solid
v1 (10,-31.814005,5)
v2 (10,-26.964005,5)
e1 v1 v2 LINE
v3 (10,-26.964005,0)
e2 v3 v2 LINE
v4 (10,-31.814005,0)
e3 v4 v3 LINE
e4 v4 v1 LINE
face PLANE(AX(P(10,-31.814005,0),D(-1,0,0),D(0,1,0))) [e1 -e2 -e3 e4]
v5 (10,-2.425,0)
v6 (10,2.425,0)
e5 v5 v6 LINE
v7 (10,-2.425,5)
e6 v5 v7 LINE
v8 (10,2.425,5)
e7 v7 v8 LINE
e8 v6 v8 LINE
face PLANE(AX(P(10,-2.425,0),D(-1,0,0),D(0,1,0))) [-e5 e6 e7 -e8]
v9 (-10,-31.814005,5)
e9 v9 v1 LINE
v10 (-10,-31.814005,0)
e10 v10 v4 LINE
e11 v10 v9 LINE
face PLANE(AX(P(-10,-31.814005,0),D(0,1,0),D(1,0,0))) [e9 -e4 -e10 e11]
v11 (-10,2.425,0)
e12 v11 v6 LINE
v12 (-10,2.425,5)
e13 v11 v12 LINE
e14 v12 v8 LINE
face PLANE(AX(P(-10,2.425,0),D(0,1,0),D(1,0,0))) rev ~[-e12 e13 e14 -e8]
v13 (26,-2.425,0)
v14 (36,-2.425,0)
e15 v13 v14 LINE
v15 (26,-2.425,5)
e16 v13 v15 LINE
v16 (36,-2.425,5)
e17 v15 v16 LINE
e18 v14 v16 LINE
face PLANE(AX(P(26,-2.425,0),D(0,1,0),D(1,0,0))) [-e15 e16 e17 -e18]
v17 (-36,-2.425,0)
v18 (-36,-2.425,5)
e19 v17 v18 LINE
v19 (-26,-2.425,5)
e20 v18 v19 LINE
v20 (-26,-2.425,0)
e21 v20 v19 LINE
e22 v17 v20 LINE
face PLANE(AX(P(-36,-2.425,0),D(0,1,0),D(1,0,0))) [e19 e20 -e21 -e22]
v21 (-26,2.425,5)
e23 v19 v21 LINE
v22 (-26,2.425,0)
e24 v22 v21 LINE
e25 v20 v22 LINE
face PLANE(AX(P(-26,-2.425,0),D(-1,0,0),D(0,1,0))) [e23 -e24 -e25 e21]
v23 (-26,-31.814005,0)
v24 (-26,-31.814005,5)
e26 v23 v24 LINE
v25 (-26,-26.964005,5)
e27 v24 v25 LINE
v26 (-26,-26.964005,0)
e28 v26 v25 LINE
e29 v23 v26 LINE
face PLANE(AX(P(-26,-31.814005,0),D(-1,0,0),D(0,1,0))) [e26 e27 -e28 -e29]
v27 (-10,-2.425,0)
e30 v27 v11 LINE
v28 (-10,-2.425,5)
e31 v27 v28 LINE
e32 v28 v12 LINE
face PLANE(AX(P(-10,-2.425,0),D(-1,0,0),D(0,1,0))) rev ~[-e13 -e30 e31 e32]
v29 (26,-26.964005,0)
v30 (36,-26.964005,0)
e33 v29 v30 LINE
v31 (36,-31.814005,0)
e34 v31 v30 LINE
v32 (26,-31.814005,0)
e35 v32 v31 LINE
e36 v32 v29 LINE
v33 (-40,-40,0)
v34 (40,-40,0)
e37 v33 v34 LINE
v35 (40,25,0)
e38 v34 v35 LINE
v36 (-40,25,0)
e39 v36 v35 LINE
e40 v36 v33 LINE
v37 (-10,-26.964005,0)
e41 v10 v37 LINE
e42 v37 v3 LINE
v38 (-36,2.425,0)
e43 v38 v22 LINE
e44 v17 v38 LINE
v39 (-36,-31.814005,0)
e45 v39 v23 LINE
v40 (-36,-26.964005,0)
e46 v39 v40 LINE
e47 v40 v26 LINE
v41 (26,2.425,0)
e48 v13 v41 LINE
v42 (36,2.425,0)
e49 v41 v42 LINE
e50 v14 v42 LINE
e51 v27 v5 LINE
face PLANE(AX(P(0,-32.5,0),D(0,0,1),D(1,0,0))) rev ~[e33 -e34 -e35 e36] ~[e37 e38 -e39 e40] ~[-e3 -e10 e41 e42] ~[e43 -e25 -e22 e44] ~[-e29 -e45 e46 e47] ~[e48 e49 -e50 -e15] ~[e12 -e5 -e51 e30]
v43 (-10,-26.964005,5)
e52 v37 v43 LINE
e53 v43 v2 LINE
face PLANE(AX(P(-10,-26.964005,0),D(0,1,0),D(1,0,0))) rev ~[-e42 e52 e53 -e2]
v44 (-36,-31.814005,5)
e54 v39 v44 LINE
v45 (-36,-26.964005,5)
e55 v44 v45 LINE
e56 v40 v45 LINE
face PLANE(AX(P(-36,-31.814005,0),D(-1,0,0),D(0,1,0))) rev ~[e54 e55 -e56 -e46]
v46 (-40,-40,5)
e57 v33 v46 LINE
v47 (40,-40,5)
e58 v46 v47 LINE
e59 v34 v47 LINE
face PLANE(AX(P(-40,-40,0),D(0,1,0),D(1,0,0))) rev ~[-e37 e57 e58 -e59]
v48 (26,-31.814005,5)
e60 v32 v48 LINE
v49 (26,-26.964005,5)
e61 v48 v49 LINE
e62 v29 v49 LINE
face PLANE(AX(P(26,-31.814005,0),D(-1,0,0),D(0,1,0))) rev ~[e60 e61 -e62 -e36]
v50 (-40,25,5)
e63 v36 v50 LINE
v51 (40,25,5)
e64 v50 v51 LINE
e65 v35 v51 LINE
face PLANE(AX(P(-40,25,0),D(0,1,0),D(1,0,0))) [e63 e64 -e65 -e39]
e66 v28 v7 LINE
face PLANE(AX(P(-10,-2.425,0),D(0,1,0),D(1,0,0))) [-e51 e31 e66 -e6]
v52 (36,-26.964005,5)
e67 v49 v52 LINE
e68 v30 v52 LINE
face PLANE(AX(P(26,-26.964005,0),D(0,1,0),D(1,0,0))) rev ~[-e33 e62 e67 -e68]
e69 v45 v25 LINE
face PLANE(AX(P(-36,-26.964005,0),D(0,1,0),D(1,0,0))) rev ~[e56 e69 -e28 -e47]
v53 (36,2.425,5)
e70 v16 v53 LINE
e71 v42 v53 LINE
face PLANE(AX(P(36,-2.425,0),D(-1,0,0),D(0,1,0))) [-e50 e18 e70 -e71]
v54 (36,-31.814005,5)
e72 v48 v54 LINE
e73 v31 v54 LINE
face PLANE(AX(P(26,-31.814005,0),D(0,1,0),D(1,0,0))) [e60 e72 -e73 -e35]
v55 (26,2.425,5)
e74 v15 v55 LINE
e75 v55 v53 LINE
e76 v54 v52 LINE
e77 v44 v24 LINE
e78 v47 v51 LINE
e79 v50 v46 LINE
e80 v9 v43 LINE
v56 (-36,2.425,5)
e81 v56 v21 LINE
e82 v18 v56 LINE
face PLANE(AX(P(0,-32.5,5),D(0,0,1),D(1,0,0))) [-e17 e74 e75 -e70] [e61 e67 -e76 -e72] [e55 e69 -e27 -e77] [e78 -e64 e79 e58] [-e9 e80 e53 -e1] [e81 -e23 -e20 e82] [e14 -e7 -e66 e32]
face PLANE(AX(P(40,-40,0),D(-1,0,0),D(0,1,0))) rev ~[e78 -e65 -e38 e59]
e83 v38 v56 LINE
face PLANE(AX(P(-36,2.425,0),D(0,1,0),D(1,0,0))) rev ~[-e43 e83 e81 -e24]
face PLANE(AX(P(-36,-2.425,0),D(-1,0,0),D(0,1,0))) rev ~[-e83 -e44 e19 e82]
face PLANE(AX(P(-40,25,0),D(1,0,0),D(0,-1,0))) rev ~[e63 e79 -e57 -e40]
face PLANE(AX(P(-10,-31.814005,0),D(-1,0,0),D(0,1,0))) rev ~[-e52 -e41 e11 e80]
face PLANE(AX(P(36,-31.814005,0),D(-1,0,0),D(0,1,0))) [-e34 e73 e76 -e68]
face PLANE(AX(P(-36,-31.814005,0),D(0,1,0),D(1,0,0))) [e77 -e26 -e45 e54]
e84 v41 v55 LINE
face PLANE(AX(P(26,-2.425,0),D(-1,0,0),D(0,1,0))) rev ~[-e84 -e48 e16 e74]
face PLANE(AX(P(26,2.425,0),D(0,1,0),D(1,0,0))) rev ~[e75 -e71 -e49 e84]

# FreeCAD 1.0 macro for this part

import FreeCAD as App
import Part
import Sketcher
from FreeCAD import Vector


def add_polygon(sketch, points):
    """Adds a closed chain of lines whose ends are joined by coincident constraints."""
    first, n = sketch.GeometryCount, len(points)
    for a, b in zip(points, points[1:] + points[:1]):
        sketch.addGeometry(Part.LineSegment(App.Vector(*a, 0), App.Vector(*b, 0)), False)
    for i in range(n):
        sketch.addConstraint(Sketcher.Constraint("Coincident", first + i, 2, first + (i + 1) % n, 1))

doc = App.newDocument("Part")
body = doc.addObject("PartDesign::Body", "Body")

# Sketch on XY plane
sketch1 = doc.addObject("Sketcher::SketchObject", "Sketch")
body.addObject(sketch1)
sketch1.AttachmentSupport = (doc.XY_Plane, [""])
sketch1.MapMode = "FlatFace"
add_polygon(sketch1, [(-40, -40), (40, -40), (40, 25), (-40, 25)])  # lines 0-3
add_polygon(sketch1, [(-26, -31.8), (-36, -31.8), (-36, -27), (-26, -27)])  # lines 4-7
add_polygon(sketch1, [(10, -31.8), (-10, -31.8), (-10, -27), (10, -27)])  # lines 8-11
add_polygon(sketch1, [(36, -31.8), (26, -31.8), (26, -27), (36, -27)])  # lines 12-15
add_polygon(sketch1, [(-26, -2.4), (-36, -2.4), (-36, 2.4), (-26, 2.4)])  # lines 16-19
add_polygon(sketch1, [(10, -2.4), (-10, -2.4), (-10, 2.4), (10, 2.4)])  # lines 20-23
add_polygon(sketch1, [(36, -2.4), (26, -2.4), (26, 2.4), (36, 2.4)])  # lines 24-27
sketch1.addConstraint(Sketcher.Constraint("Horizontal", 0))
sketch1.addConstraint(Sketcher.Constraint("Vertical", 1))
sketch1.addConstraint(Sketcher.Constraint("Horizontal", 2))
sketch1.addConstraint(Sketcher.Constraint("Vertical", 3))
sketch1.addConstraint(Sketcher.Constraint("Horizontal", 4))
sketch1.addConstraint(Sketcher.Constraint("Vertical", 5))
sketch1.addConstraint(Sketcher.Constraint("Horizontal", 6))
sketch1.addConstraint(Sketcher.Constraint("Vertical", 7))
sketch1.addConstraint(Sketcher.Constraint("Horizontal", 8))
sketch1.addConstraint(Sketcher.Constraint("Vertical", 9))
sketch1.addConstraint(Sketcher.Constraint("Horizontal", 10))
sketch1.addConstraint(Sketcher.Constraint("Vertical", 11))
sketch1.addConstraint(Sketcher.Constraint("Horizontal", 12))
sketch1.addConstraint(Sketcher.Constraint("Vertical", 13))
sketch1.addConstraint(Sketcher.Constraint("Horizontal", 14))
sketch1.addConstraint(Sketcher.Constraint("Vertical", 15))
sketch1.addConstraint(Sketcher.Constraint("Horizontal", 16))
sketch1.addConstraint(Sketcher.Constraint("Vertical", 17))
sketch1.addConstraint(Sketcher.Constraint("Horizontal", 18))
sketch1.addConstraint(Sketcher.Constraint("Vertical", 19))
sketch1.addConstraint(Sketcher.Constraint("Horizontal", 20))
sketch1.addConstraint(Sketcher.Constraint("Vertical", 21))
sketch1.addConstraint(Sketcher.Constraint("Horizontal", 22))
sketch1.addConstraint(Sketcher.Constraint("Vertical", 23))
sketch1.addConstraint(Sketcher.Constraint("Horizontal", 24))
sketch1.addConstraint(Sketcher.Constraint("Vertical", 25))
sketch1.addConstraint(Sketcher.Constraint("Horizontal", 26))
sketch1.addConstraint(Sketcher.Constraint("Vertical", 27))
sketch1.addConstraint(Sketcher.Constraint("Symmetric", 20, 2, 22, 2, -1, 1))
sketch1.addConstraint(Sketcher.Constraint("Symmetric", 18, 2, 24, 2, -1, 1))
sketch1.addConstraint(Sketcher.Constraint("Symmetric", 16, 2, 26, 2, -1, 1))
sketch1.addConstraint(Sketcher.Constraint("Symmetric", 7, 2, 12, 2, -2))
sketch1.addConstraint(Sketcher.Constraint("Symmetric", 5, 2, 14, 2, -2))
sketch1.addConstraint(Sketcher.Constraint("Horizontal", 7, 2, 8, 2))
sketch1.addConstraint(Sketcher.Constraint("Horizontal", 6, 2, 9, 2))
sketch1.addConstraint(Sketcher.Constraint("Horizontal", 19, 2, 20, 2))
sketch1.addConstraint(Sketcher.Constraint("Horizontal", 18, 2, 21, 2))
sketch1.addConstraint(Sketcher.Constraint("Vertical", 5, 2, 16, 2))
sketch1.addConstraint(Sketcher.Constraint("Vertical", 7, 2, 18, 2))
sketch1.addConstraint(Sketcher.Constraint("Vertical", 9, 2, 20, 2))
sketch1.addConstraint(Sketcher.Constraint("Vertical", 11, 2, 22, 2))
sketch1.addConstraint(Sketcher.Constraint("Equal", 15, 17))
sketch1.addConstraint(Sketcher.Constraint("DistanceX", 0, 1, 0, 2, 80.0))
sketch1.addConstraint(Sketcher.Constraint("DistanceX", 4, 2, 4, 1, 10.0))
sketch1.addConstraint(Sketcher.Constraint("DistanceX", 8, 2, 8, 1, 20.0))
sketch1.addConstraint(Sketcher.Constraint("DistanceY", 1, 1, 1, 2, 65.0))
sketch1.addConstraint(Sketcher.Constraint("DistanceX", -1, 1, 0, 2, 40.0))
sketch1.addConstraint(Sketcher.Constraint("DistanceY", 0, 2, -1, 1, 40.0))
sketch1.addConstraint(Sketcher.Constraint("DistanceX", 4, 2, -1, 1, 36.0))
sketch1.addConstraint(Sketcher.Constraint("DistanceY", 5, 1, 5, 2, 4.85))
sketch1.addConstraint(Sketcher.Constraint("DistanceY", 4, 2, -1, 1, 31.814005))
pad1 = doc.addObject("PartDesign::Pad", "Pad")
body.addObject(pad1)
pad1.Profile = sketch1
pad1.Length = 5

doc.recompute()
